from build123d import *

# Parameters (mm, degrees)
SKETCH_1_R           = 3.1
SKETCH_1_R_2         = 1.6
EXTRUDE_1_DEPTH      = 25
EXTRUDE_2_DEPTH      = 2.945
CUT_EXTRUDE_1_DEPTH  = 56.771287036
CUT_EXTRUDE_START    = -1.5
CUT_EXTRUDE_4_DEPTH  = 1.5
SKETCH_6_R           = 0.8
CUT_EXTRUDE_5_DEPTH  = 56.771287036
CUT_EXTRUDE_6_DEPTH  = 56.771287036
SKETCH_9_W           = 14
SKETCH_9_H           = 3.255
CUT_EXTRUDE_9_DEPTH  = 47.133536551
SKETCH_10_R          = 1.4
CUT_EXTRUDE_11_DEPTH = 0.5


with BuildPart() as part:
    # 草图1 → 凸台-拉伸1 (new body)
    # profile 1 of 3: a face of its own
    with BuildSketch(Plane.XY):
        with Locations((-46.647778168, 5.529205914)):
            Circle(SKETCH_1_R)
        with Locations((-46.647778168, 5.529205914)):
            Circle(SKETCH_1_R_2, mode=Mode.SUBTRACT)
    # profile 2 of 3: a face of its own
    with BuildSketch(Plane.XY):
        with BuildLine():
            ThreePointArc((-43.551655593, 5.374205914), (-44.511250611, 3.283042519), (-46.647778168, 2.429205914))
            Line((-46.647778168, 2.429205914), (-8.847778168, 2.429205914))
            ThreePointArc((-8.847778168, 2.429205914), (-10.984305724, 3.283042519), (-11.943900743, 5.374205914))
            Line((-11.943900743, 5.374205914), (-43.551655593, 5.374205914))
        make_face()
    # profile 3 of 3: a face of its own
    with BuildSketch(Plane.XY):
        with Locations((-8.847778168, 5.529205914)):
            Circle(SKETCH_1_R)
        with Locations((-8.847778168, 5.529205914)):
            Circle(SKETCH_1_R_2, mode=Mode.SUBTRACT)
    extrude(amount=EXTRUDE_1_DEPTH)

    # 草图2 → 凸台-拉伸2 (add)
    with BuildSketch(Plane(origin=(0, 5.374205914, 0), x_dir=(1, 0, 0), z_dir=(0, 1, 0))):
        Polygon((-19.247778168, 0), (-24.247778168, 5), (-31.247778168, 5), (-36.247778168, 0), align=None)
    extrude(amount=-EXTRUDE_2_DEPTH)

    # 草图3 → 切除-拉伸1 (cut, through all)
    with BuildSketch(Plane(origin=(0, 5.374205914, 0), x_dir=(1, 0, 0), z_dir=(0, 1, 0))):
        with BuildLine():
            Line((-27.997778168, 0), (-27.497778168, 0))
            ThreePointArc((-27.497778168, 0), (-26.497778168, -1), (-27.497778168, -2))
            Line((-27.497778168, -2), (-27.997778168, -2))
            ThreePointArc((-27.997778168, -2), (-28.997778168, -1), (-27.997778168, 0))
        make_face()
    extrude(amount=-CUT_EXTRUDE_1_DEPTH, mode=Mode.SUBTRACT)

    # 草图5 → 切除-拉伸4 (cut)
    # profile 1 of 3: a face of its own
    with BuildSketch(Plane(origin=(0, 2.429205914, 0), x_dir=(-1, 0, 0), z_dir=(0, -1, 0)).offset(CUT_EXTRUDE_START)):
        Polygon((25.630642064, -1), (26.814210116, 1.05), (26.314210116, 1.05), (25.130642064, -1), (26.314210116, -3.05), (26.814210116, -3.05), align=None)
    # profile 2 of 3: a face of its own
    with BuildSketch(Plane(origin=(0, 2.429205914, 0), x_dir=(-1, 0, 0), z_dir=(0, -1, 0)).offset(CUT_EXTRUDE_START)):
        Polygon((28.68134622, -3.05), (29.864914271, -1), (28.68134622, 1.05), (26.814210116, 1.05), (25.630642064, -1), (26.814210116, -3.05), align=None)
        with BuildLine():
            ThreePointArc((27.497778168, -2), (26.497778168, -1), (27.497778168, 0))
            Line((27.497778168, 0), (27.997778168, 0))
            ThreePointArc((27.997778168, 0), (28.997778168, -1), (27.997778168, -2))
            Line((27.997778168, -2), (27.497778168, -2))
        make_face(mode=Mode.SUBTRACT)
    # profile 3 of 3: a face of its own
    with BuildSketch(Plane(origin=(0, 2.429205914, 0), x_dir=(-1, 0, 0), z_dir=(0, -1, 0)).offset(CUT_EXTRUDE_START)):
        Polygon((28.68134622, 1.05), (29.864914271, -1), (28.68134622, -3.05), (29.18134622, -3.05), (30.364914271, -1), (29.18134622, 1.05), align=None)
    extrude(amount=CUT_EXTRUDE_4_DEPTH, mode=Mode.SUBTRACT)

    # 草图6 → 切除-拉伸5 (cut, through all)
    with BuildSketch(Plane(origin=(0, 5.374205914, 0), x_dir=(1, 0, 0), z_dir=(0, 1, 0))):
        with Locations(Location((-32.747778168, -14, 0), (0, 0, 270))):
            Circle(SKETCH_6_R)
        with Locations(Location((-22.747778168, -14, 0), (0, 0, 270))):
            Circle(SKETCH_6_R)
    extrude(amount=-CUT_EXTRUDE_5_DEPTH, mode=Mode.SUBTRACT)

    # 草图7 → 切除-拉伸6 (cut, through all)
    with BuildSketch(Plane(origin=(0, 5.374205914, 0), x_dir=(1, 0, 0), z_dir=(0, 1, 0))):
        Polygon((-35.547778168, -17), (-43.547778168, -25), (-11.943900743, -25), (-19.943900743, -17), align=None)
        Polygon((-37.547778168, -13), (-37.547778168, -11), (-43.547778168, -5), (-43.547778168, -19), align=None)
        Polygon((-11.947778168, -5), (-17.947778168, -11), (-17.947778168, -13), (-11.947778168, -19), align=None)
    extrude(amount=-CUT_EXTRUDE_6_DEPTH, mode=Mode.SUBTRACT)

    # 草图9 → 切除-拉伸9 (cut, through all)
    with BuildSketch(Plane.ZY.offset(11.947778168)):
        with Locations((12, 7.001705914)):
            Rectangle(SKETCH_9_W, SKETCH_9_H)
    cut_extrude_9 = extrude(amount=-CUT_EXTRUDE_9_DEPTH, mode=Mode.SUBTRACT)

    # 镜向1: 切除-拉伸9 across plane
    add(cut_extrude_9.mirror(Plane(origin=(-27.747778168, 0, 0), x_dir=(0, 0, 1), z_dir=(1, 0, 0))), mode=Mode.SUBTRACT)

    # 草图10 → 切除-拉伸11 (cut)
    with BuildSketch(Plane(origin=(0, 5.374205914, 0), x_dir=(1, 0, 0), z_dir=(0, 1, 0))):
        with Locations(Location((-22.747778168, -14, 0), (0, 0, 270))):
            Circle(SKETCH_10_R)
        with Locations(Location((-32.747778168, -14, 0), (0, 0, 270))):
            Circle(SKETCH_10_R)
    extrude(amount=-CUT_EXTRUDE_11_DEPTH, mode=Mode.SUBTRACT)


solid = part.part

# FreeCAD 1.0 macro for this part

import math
import FreeCAD as App
import Part
import Sketcher
Q = App.Units.Quantity


def add_polygon(sketch, points):
    """Adds a closed chain of lines whose ends are joined by coincident constraints."""
    first, n = sketch.GeometryCount, len(points)
    for a, b in zip(points, points[1:] + points[:1]):
        sketch.addGeometry(Part.LineSegment(App.Vector(*a, 0), App.Vector(*b, 0)), False)
    for i in range(n):
        sketch.addConstraint(Sketcher.Constraint("Coincident", first + i, 2, first + (i + 1) % n, 1))

doc = App.newDocument("Part")
body = doc.addObject("PartDesign::Body", "Body")

# Sketch on XY plane
sketch1 = body.newObject("Sketcher::SketchObject", "Sketch")
sketch1.AttachmentSupport = (doc.getObject("XY_Plane"), [""])
sketch1.MapMode = "FlatFace"
sketch1.addGeometry([
    Part.LineSegment(App.Vector(-46.6, 2.4, 0), App.Vector(-8.8, 2.4, 0)),  # 0
    Part.ArcOfCircle(Part.Circle(App.Vector(-8.8, 5.5, 0), App.Vector(0, 0, 1), 3.1), math.radians(-90), math.radians(183)),  # 1
    Part.LineSegment(App.Vector(-11.9, 5.4, 0), App.Vector(-43.6, 5.4, 0)),  # 2
    Part.ArcOfCircle(Part.Circle(App.Vector(-46.6, 5.5, 0), App.Vector(0, 0, 1), 3.1), math.radians(-3), math.radians(270)),  # 3
    Part.Circle(App.Vector(-46.6, 5.5, 0), App.Vector(0, 0, 1), 1.6),  # 4
    Part.Circle(App.Vector(-8.8, 5.5, 0), App.Vector(0, 0, 1), 1.6),  # 5
], False)
sketch1.addConstraint([
    Sketcher.Constraint("Tangent", 0, 2, 1, 1),
    Sketcher.Constraint("Coincident", 1, 2, 2, 1),
    Sketcher.Constraint("Coincident", 2, 2, 3, 1),
    Sketcher.Constraint("Tangent", 3, 2, 0, 1),
    Sketcher.Constraint("Horizontal", 0),
    Sketcher.Constraint("Horizontal", 2),
    Sketcher.Constraint("Coincident", 4, 3, 3, 3),
    Sketcher.Constraint("Coincident", 5, 3, 1, 3),
    Sketcher.Constraint("Equal", 1, 3),
    Sketcher.Constraint("Equal", 4, 5),
    Sketcher.Constraint("Diameter", 4, 3.2),
    Sketcher.Constraint("Radius", 1, 3.1),
    Sketcher.Constraint("DistanceX", 0, 1, 0, 2, 37.8),
    Sketcher.Constraint("DistanceY", 1, 2, 1, 3, 0.155),
    Sketcher.Constraint("DistanceX", 1, 2, -1, 1, 11.943901),
    Sketcher.Constraint("DistanceY", -1, 1, 1, 3, 5.529206),
])
pad1 = body.newObject("PartDesign::Pad", "Pad")
pad1.Profile = sketch1
pad1.Length = 25

# Sketch on XZ plane
sketch2 = body.newObject("Sketcher::SketchObject", "Sketch001")
sketch2.AttachmentSupport = (doc.getObject("XZ_Plane"), [""])
sketch2.MapMode = "FlatFace"
sketch2.AttachmentOffset = App.Placement(App.Vector(0, 0, -5.374206), App.Rotation())
add_polygon(sketch2, [(-19, 0), (-24, -5), (-31, -5), (-36, 0)])  # lines 0-3
sketch2.addConstraint([
    Sketcher.Constraint("Horizontal", 1),
    Sketcher.Constraint("Horizontal", 3),
    Sketcher.Constraint("PointOnObject", 2, 2, -1),
    Sketcher.Constraint("Perpendicular", 0, 2),
    Sketcher.Constraint("Equal", 0, 2),
    Sketcher.Constraint("DistanceX", 1, 2, 1, 1, 7.0),
    Sketcher.Constraint("DistanceX", 3, 1, 3, 2, 17.0),
    Sketcher.Constraint("DistanceX", 0, 2, -1, 1, 24.247778),
])
pad2 = body.newObject("PartDesign::Pad", "Pad001")
pad2.Profile = sketch2
pad2.Length = 2.945

# Sketch on XZ plane
sketch3 = body.newObject("Sketcher::SketchObject", "Sketch002")
sketch3.AttachmentSupport = (doc.getObject("XZ_Plane"), [""])
sketch3.MapMode = "FlatFace"
sketch3.AttachmentOffset = App.Placement(App.Vector(0, 0, -5.374206), App.Rotation())
sketch3.addGeometry([
    Part.LineSegment(App.Vector(-27.5, 0, 0), App.Vector(-28, 0, 0)),
    Part.ArcOfCircle(Part.Circle(App.Vector(-28, 1, 0), App.Vector(0, 0, 1), 1), math.radians(90), math.radians(270)),
    Part.LineSegment(App.Vector(-28, 2, 0), App.Vector(-27.5, 2, 0)),
    Part.ArcOfCircle(Part.Circle(App.Vector(-27.5, 1, 0), App.Vector(0, 0, 1), 1), math.radians(-90), math.radians(90)),
], False)
sketch3.addConstraint([
    Sketcher.Constraint("Tangent", 0, 2, 1, 2),
    Sketcher.Constraint("Tangent", 1, 1, 2, 1),
    Sketcher.Constraint("Tangent", 2, 2, 3, 2),
    Sketcher.Constraint("Tangent", 3, 1, 0, 1),
    Sketcher.Constraint("Horizontal", 0),
    Sketcher.Constraint("Horizontal", 2),
    Sketcher.Constraint("PointOnObject", 0, 2, -1),
    Sketcher.Constraint("Radius", 1, 1.0),
    Sketcher.Constraint("DistanceX", 0, 2, 0, 1, 0.5),
    Sketcher.Constraint("DistanceX", 1, 3, -1, 1, 27.997778),
])
pocket1 = body.newObject("PartDesign::Pocket", "Pocket")
pocket1.Profile = sketch3
pocket1.Type = "ThroughAll"
pocket1.Reversed = True

# Sketch on XZ plane
sketch4 = body.newObject("Sketcher::SketchObject", "Sketch003")
sketch4.AttachmentSupport = (doc.getObject("XZ_Plane"), [""])
sketch4.MapMode = "FlatFace"
sketch4.AttachmentOffset = App.Placement(App.Vector(0, 0, -3.929206), App.Rotation())
add_polygon(sketch4, [(-26.3, -1.1), (-25.1, 1), (-26.3, 3), (-29.2, 3), (-30.4, 1), (-29.2, -1.1)])  # lines 0-5
sketch4.addGeometry(Part.LineSegment(App.Vector(-27.5, 0, 0), App.Vector(-28, 0, 0)), False)  # 6
sketch4.addGeometry(Part.ArcOfCircle(Part.Circle(App.Vector(-28, 1, 0), App.Vector(0, 0, 1), 1), math.radians(90), math.radians(270)), False)  # 7
sketch4.addGeometry(Part.LineSegment(App.Vector(-28, 2, 0), App.Vector(-27.5, 2, 0)), False)  # 8
sketch4.addGeometry(Part.ArcOfCircle(Part.Circle(App.Vector(-27.5, 1, 0), App.Vector(0, 0, 1), 1), math.radians(-90), math.radians(90)), False)  # 9
sketch4.addConstraint([
    Sketcher.Constraint("Tangent", 6, 2, 7, 2),
    Sketcher.Constraint("Tangent", 7, 1, 8, 1),
    Sketcher.Constraint("Tangent", 8, 2, 9, 2),
    Sketcher.Constraint("Tangent", 9, 1, 6, 1),
    Sketcher.Constraint("Horizontal", 2),
    Sketcher.Constraint("Horizontal", 5),
    Sketcher.Constraint("Horizontal", 6),
    Sketcher.Constraint("Horizontal", 8),
    Sketcher.Constraint("PointOnObject", 6, 2, -1),
    Sketcher.Constraint("Parallel", 0, 3),
    Sketcher.Constraint("Parallel", 1, 4),
    Sketcher.Constraint("Horizontal", 9, 3, 0, 2),
    Sketcher.Constraint("Horizontal", 0, 2, 3, 2),
    Sketcher.Constraint("Vertical", 2, 2, 4, 2),
    Sketcher.Constraint("Vertical", 1, 2, 5, 2),
    Sketcher.Constraint("Radius", 7, 1.0),
    Sketcher.Constraint("Angle", 0, Q("60 deg")),
    Sketcher.Constraint("DistanceX", 6, 2, 6, 1, 0.5),
    Sketcher.Constraint("DistanceY", 4, 2, 2, 2, 4.1),
    Sketcher.Constraint("DistanceX", 2, 2, 2, 1, 2.867136),
    Sketcher.Constraint("DistanceX", 7, 3, -1, 1, 27.997778),
    Sketcher.Constraint("DistanceX", 1, 2, -1, 1, 26.31421),
])
pocket2 = body.newObject("PartDesign::Pocket", "Pocket001")
pocket2.Profile = sketch4
pocket2.Length = 1.5
pocket2.Reversed = True

# Sketch on XZ plane
sketch5 = body.newObject("Sketcher::SketchObject", "Sketch004")
sketch5.AttachmentSupport = (doc.getObject("XZ_Plane"), [""])
sketch5.MapMode = "FlatFace"
sketch5.AttachmentOffset = App.Placement(App.Vector(0, 0, -5.374206), App.Rotation())
sketch5.addGeometry([
    Part.Circle(App.Vector(-32.7, 14, 0), App.Vector(0, 0, 1), 0.8),
    Part.Circle(App.Vector(-22.7, 14, 0), App.Vector(0, 0, 1), 0.8),
], False)
sketch5.addConstraint([
    Sketcher.Constraint("Equal", 0, 1),
    Sketcher.Constraint("Horizontal", 0, 3, 1, 3),
    Sketcher.Constraint("Diameter", 0, 1.6),
    Sketcher.Constraint("DistanceY", -1, 1, 0, 3, 14.0),
    Sketcher.Constraint("DistanceX", 0, 3, 1, 3, 10.0),
    Sketcher.Constraint("DistanceX", 0, 3, -1, 1, 32.747778),
])
pocket3 = body.newObject("PartDesign::Pocket", "Pocket002")
pocket3.Profile = sketch5
pocket3.Type = "ThroughAll"
pocket3.Reversed = True

# Sketch on XZ plane
sketch6 = body.newObject("Sketcher::SketchObject", "Sketch005")
sketch6.AttachmentSupport = (doc.getObject("XZ_Plane"), [""])
sketch6.MapMode = "FlatFace"
sketch6.AttachmentOffset = App.Placement(App.Vector(0, 0, -5.374206), App.Rotation())
add_polygon(sketch6, [(-35.5, 17), (-43.5, 25), (-11.9, 25), (-19.9, 17)])  # lines 0-3
add_polygon(sketch6, [(-37.5, 13), (-37.5, 11), (-43.5, 5), (-43.5, 19)])  # lines 4-7
add_polygon(sketch6, [(-11.9, 5), (-17.9, 11), (-17.9, 13), (-11.9, 19)])  # lines 8-11
sketch6.addConstraint([
    Sketcher.Constraint("Horizontal", 1),
    Sketcher.Constraint("Horizontal", 3),
    Sketcher.Constraint("Vertical", 4),
    Sketcher.Constraint("Vertical", 6),
    Sketcher.Constraint("Vertical", 9),
    Sketcher.Constraint("Vertical", 11),
    Sketcher.Constraint("Perpendicular", 0, 2),
    Sketcher.Constraint("Parallel", 2, 5),
    Sketcher.Constraint("Perpendicular", 5, 7),
    Sketcher.Constraint("Parallel", 7, 8),
    Sketcher.Constraint("Perpendicular", 8, 10),
    Sketcher.Constraint("Horizontal", 4, 2, 8, 2),
    Sketcher.Constraint("Horizontal", 7, 2, 9, 2),
    Sketcher.Constraint("Horizontal", 6, 2, 10, 2),
    Sketcher.Constraint("Horizontal", 5, 2, 11, 2),
    Sketcher.Constraint("Vertical", 0, 2, 5, 2),
    Sketcher.Constraint("DistanceY", 4, 2, 4, 1, 2.0),
    Sketcher.Constraint("DistanceY", 6, 1, 6, 2, 14.0),
    Sketcher.Constraint("DistanceY", -1, 1, 0, 2, 25.0),
    Sketcher.Constraint("DistanceY", -1, 1, 2, 2, 17.0),
    Sketcher.Constraint("DistanceY", -1, 1, 4, 2, 11.0),
    Sketcher.Constraint("DistanceX", 3, 2, 8, 2, 17.6),
    Sketcher.Constraint("DistanceX", 1, 2, -1, 1, 11.943901),
    Sketcher.Constraint("DistanceX", 1, 1, 1, 2, 31.603877),
])
pocket4 = body.newObject("PartDesign::Pocket", "Pocket003")
pocket4.Profile = sketch6
pocket4.Type = "ThroughAll"
pocket4.Reversed = True

# Sketch on YZ plane
sketch7 = body.newObject("Sketcher::SketchObject", "Sketch006")
sketch7.AttachmentSupport = (doc.getObject("YZ_Plane"), [""])
sketch7.MapMode = "FlatFace"
sketch7.AttachmentOffset = App.Placement(App.Vector(0, 0, -11.947778), App.Rotation())
add_polygon(sketch7, [(8.6, 5), (5.4, 5), (5.4, 19), (8.6, 19)])  # lines 0-3
sketch7.addConstraint([
    Sketcher.Constraint("Horizontal", 0),
    Sketcher.Constraint("Vertical", 1),
    Sketcher.Constraint("Horizontal", 2),
    Sketcher.Constraint("Vertical", 3),
    Sketcher.Constraint("DistanceY", 1, 1, 1, 2, 14.0),
    Sketcher.Constraint("DistanceY", -1, 1, 0, 2, 5.0),
    Sketcher.Constraint("DistanceX", 0, 2, 0, 1, 3.255),
    Sketcher.Constraint("DistanceX", -1, 1, 0, 2, 5.374206),
])
pocket5 = body.newObject("PartDesign::Pocket", "Pocket004")
pocket5.Profile = sketch7
pocket5.Type = "ThroughAll"
pocket5.Reversed = True
doc.recompute()

datumplane = body.newObject("PartDesign::Plane", "DatumPlane")
datumplane.AttachmentSupport = (doc.getObject("YZ_Plane"), [""])
datumplane.MapMode = "FlatFace"
datumplane.AttachmentOffset = App.Placement(App.Vector(0, 0, -27.747778), App.Rotation())
mirrored = body.newObject("PartDesign::Mirrored", "Mirrored")
mirrored.Originals = [pocket5]
mirrored.MirrorPlane = (datumplane, [""])
body.Tip = mirrored

# Sketch on XZ plane
sketch8 = body.newObject("Sketcher::SketchObject", "Sketch007")
sketch8.AttachmentSupport = (doc.getObject("XZ_Plane"), [""])
sketch8.MapMode = "FlatFace"
sketch8.AttachmentOffset = App.Placement(App.Vector(0, 0, -5.374206), App.Rotation())
sketch8.addGeometry([
    Part.Circle(App.Vector(-22.7, 14, 0), App.Vector(0, 0, 1), 1.4),
    Part.Circle(App.Vector(-32.7, 14, 0), App.Vector(0, 0, 1), 1.4),
], False)
sketch8.addConstraint([
    Sketcher.Constraint("Equal", 0, 1),
    Sketcher.Constraint("Horizontal", 0, 3, 1, 3),
    Sketcher.Constraint("Diameter", 0, 2.8),
    Sketcher.Constraint("DistanceY", -1, 1, 0, 3, 14.0),
    Sketcher.Constraint("DistanceX", 1, 3, 0, 3, 10.0),
    Sketcher.Constraint("DistanceX", 0, 3, -1, 1, 22.747778),
])
pocket6 = body.newObject("PartDesign::Pocket", "Pocket005")
pocket6.Profile = sketch8
pocket6.Length = 0.5
pocket6.Reversed = True

doc.recompute()
